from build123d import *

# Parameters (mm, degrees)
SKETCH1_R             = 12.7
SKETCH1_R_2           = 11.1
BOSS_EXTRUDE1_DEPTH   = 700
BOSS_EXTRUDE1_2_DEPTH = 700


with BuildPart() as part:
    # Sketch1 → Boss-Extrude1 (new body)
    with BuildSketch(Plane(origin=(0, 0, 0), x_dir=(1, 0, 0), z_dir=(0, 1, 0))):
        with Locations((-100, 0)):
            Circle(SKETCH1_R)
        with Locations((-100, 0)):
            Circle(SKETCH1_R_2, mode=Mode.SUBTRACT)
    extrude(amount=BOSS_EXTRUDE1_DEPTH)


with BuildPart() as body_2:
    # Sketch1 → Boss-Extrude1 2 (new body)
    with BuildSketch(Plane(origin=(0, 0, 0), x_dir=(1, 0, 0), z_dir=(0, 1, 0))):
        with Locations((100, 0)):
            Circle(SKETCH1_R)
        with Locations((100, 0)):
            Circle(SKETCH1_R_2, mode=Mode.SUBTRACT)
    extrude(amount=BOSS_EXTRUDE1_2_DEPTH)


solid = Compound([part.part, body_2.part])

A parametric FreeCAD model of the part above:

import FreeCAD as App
import Part
import Sketcher

V = App.Vector

doc = App.newDocument("Part")
body = doc.addObject("PartDesign::Body", "Body")

sketch1 = body.newObject("Sketcher::SketchObject", "Sketch")
sketch1.AttachmentSupport = (doc.getObject("XZ_Plane"), [""])
sketch1.MapMode = "FlatFace"
sketch1.addGeometry([
    Part.Circle(V(-100, 0, 0), V(0, 0, 1), 12.7),
    Part.Circle(V(-100, 0, 0), V(0, 0, 1), 11.1),
], False)
sketch1.addConstraint([
    Sketcher.Constraint("Coincident", 1, 3, 0, 3),
    Sketcher.Constraint("PointOnObject", 0, 3, -1),
    Sketcher.Constraint("Diameter", 0, 25.4),
    Sketcher.Constraint("Diameter", 1, 22.2),
    Sketcher.Constraint("DistanceX", 0, 3, -1, 1, 100.0),
])
pad1 = body.newObject("PartDesign::Pad", "Pad")
pad1.Profile = sketch1
pad1.Length = 700
pad1.Reversed = True
body2 = doc.addObject("PartDesign::Body", "Body001")

sketch2 = body2.newObject("Sketcher::SketchObject", "Sketch001")
sketch2.AttachmentSupport = (doc.getObject("XZ_Plane001"), [""])
sketch2.MapMode = "FlatFace"
sketch2.addGeometry([
    Part.Circle(V(100, 0, 0), V(0, 0, 1), 12.7),
    Part.Circle(V(100, 0, 0), V(0, 0, 1), 11.1),
], False)
sketch2.addConstraint([
    Sketcher.Constraint("Coincident", 1, 3, 0, 3),
    Sketcher.Constraint("PointOnObject", 0, 3, -1),
    Sketcher.Constraint("Diameter", 0, 25.4),
    Sketcher.Constraint("Diameter", 1, 22.2),
    Sketcher.Constraint("DistanceX", -1, 1, 0, 3, 100.0),
])
pad2 = body2.newObject("PartDesign::Pad", "Pad001")
pad2.Profile = sketch2
pad2.Length = 700
pad2.Reversed = True

doc.recompute()
